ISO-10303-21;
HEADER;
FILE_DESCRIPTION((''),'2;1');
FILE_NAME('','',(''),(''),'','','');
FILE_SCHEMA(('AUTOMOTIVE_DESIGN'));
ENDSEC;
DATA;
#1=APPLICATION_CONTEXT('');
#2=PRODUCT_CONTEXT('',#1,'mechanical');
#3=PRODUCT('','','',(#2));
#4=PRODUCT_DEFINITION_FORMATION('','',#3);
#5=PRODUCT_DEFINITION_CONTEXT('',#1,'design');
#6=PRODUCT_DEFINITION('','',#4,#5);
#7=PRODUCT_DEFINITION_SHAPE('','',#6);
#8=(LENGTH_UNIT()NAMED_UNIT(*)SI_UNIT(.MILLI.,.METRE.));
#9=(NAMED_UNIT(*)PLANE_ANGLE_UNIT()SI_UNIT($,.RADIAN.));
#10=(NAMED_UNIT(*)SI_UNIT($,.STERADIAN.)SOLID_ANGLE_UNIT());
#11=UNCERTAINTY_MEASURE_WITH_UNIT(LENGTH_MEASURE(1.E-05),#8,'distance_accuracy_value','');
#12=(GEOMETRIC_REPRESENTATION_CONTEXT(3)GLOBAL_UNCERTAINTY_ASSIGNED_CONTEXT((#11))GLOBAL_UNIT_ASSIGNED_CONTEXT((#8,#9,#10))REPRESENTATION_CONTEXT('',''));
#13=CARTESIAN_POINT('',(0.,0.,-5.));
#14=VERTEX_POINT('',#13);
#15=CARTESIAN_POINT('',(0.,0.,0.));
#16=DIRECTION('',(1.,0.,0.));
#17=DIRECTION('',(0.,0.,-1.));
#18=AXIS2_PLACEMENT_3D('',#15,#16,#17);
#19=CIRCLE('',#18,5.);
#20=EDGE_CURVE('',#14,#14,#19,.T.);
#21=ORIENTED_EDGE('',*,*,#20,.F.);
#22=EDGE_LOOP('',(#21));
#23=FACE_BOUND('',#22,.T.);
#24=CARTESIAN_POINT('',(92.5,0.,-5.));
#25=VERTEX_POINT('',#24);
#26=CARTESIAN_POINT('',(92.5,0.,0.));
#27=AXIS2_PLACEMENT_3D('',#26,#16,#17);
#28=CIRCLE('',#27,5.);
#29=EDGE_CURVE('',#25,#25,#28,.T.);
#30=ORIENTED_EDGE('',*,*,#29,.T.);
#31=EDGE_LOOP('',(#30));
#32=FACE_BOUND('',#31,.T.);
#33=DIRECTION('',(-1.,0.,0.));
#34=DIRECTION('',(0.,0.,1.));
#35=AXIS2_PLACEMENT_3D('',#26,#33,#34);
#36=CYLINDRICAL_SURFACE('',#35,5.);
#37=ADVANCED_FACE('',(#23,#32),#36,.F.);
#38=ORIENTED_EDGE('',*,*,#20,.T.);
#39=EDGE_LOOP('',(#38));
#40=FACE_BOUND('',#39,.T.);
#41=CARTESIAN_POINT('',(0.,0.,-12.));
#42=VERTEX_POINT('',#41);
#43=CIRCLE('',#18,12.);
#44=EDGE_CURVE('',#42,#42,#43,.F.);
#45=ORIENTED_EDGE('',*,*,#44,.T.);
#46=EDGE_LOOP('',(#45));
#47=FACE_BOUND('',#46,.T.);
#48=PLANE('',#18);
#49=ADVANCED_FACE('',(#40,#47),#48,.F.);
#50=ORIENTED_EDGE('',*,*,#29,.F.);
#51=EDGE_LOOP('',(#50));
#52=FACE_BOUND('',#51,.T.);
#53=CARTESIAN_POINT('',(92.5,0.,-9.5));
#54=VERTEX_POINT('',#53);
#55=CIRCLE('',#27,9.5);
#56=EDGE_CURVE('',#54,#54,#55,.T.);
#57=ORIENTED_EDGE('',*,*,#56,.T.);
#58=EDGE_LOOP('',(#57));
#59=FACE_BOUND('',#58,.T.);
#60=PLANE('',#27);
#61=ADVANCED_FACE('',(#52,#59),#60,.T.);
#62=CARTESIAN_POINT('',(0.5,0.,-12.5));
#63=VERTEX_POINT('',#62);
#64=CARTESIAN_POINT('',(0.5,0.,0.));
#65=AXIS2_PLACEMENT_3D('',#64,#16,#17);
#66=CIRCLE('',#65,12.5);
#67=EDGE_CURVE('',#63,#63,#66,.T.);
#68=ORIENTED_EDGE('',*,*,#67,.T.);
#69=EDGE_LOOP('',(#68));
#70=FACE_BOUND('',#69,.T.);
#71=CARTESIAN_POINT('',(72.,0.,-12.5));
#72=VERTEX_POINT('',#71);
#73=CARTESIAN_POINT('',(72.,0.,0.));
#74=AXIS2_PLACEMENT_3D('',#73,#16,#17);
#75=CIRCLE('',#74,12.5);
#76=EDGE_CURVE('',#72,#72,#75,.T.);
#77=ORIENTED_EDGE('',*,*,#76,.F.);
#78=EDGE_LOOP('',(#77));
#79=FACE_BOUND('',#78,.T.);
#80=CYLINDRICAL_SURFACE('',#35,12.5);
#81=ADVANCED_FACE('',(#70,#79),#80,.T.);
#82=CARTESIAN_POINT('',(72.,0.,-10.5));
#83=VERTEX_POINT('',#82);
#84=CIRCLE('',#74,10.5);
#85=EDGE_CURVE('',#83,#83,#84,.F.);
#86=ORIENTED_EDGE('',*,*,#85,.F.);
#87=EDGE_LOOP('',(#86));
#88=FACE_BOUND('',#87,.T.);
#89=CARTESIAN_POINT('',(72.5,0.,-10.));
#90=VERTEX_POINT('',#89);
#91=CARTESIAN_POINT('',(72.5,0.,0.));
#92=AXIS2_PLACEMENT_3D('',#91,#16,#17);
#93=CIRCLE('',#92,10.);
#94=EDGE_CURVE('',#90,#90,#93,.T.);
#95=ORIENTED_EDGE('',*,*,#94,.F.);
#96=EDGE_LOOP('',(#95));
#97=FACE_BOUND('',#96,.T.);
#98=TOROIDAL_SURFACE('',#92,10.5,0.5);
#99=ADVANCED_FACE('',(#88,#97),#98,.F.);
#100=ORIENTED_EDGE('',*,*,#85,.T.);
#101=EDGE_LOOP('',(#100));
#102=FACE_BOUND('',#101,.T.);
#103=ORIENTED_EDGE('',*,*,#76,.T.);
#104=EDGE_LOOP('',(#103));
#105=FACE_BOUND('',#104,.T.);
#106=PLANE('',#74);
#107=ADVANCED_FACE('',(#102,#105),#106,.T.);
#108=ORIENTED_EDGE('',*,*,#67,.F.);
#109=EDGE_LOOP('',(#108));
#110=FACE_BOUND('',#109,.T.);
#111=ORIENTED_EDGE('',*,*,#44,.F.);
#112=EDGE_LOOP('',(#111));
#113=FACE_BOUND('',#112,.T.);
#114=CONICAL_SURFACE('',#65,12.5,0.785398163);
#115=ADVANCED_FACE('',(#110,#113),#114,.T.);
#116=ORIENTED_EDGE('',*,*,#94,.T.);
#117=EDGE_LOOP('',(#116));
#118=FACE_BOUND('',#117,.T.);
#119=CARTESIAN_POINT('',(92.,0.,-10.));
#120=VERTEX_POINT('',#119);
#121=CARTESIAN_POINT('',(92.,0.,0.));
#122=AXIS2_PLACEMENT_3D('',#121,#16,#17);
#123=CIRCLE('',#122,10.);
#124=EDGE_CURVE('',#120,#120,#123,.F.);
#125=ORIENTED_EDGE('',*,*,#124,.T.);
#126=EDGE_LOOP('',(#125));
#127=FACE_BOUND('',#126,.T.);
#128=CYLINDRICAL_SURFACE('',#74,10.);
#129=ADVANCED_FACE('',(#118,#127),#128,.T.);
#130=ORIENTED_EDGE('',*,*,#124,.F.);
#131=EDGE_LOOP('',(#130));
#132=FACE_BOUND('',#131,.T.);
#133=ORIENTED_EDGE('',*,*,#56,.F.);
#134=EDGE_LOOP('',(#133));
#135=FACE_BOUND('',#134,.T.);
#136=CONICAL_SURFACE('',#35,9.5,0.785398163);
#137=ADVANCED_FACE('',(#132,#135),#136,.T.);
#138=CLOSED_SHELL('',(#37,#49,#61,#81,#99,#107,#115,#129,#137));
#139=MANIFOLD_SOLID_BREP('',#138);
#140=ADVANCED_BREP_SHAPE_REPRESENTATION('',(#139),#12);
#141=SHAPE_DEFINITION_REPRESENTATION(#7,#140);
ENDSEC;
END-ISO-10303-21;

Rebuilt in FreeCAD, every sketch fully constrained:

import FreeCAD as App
import Part
import Sketcher

V = App.Vector
Q = App.Units.Quantity


def edges_at(feature, points):
    """Names of the edges that pass closest to the given points."""
    edges = feature.Shape.Edges
    near = lambda p: min(range(len(edges)), key=lambda i: edges[i].distToShape(Part.Vertex(*p))[0])
    return sorted({f"Edge{near(p) + 1}" for p in points})


def add_polygon(sketch, points):
    """Adds a closed chain of lines whose ends are joined by coincident constraints."""
    first, n = sketch.GeometryCount, len(points)
    for a, b in zip(points, points[1:] + points[:1]):
        sketch.addGeometry(Part.LineSegment(App.Vector(*a, 0), App.Vector(*b, 0)), False)
    for i in range(n):
        sketch.addConstraint(Sketcher.Constraint("Coincident", first + i, 2, first + (i + 1) % n, 1))

doc = App.newDocument("Part")
body = doc.addObject("PartDesign::Body", "Body")

sketch1 = body.newObject("Sketcher::SketchObject", "Sketch")
sketch1.AttachmentSupport = (doc.getObject("YZ_Plane"), [""])
sketch1.MapMode = "FlatFace"
sketch1.addGeometry(Part.Circle(V(0, 0, 0), V(0, 0, 1), 12), False)
sketch1.addGeometry(Part.Circle(V(0, 0, 0), V(0, 0, 1), 5), False)
sketch1.addConstraint(Sketcher.Constraint("Coincident", 0, 3, -1, 1))
sketch1.addConstraint(Sketcher.Constraint("Coincident", 1, 3, -1, 1))
sketch1.addConstraint(Sketcher.Constraint("Diameter", 0, Q("25 mm")))
sketch1.addConstraint(Sketcher.Constraint("Diameter", 1, Q("10 mm")))
pad1 = body.newObject("PartDesign::Pad", "Pad")
pad1.Profile = sketch1
pad1.Length = 92.5

sketch2 = body.newObject("Sketcher::SketchObject", "Sketch001")
sketch2.AttachmentSupport = (doc.getObject("YZ_Plane"), [""])
sketch2.MapMode = "FlatFace"
sketch2.AttachmentOffset = App.Placement(V(0, 0, 92.5), App.Rotation())
add_polygon(sketch2, [(23, 23), (-23, 23), (-23, -23), (23, -23)])
sketch2.addGeometry(Part.Circle(V(0, 0, 0), V(0, 0, 1), 10), False)
sketch2.addConstraint(Sketcher.Constraint("Horizontal", 0))
sketch2.addConstraint(Sketcher.Constraint("Vertical", 1))
sketch2.addConstraint(Sketcher.Constraint("Horizontal", 2))
sketch2.addConstraint(Sketcher.Constraint("Vertical", 3))
sketch2.addConstraint(Sketcher.Constraint("Coincident", 4, 3, -1, 1))
sketch2.addConstraint(Sketcher.Constraint("Symmetric", 0, 2, 2, 2, -1, 1))
sketch2.addConstraint(Sketcher.Constraint("Equal", 2, 1))
sketch2.addConstraint(Sketcher.Constraint("Diameter", 4, Q("20 mm")))
sketch2.addConstraint(Sketcher.Constraint("DistanceX", 0, 2, 0, 1, Q("46.806 mm")))
pocket1 = body.newObject("PartDesign::Pocket", "Pocket")
pocket1.Profile = sketch2
pocket1.Length = 20.5
doc.recompute()

fillet = body.newObject("PartDesign::Fillet", "Fillet")
fillet.Base = (pocket1, edges_at(pocket1, [(72, 0, 10)]))
fillet.Radius = 0.5
doc.recompute()

chamfer = body.newObject("PartDesign::Chamfer", "Chamfer")
chamfer.Base = (fillet, edges_at(fillet, [(92.5, 0, 10), (0, 0, 12.5)]))
chamfer.Size = 0.5

doc.recompute()
